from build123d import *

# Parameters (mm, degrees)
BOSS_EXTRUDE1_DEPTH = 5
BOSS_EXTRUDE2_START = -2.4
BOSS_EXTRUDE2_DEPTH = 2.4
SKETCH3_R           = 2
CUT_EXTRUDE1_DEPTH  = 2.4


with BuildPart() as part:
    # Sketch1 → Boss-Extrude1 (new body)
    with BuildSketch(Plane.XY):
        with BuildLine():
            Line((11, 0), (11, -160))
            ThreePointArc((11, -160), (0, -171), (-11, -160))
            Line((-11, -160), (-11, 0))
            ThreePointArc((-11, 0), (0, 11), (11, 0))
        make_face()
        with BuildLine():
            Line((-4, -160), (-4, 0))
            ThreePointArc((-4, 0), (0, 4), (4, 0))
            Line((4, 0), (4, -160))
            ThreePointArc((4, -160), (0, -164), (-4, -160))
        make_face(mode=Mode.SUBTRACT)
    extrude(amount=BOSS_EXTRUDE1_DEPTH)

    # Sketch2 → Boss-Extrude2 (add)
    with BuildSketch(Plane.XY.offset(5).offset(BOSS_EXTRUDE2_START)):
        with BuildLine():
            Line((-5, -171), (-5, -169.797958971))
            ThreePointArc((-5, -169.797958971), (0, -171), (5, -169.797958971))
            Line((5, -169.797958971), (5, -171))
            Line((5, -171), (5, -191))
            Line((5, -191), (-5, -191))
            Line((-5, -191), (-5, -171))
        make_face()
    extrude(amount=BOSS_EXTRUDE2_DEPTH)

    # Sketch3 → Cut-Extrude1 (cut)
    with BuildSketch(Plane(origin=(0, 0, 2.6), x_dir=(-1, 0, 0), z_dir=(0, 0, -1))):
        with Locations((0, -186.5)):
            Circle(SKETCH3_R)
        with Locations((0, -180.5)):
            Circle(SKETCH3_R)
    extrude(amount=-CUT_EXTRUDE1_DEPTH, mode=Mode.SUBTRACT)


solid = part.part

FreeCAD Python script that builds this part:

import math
import FreeCAD as App
import Part
import Sketcher
Q = App.Units.Quantity

doc = App.newDocument("Part")
params = doc.addObject("Spreadsheet::Sheet", "Params")
for row, (alias, value) in enumerate([
    ("sketch1_radius", "11 mm"),
    ("sketch1_radius2", "4 mm"),
    ("sketch1_height", "160 mm"),
    ("pad1_length", "5 mm"),
    ("sketch2_radius", "11 mm"),
    ("sketch2_width", "10 mm"),
    ("pad2_length", "2.4 mm"),
    ("sketch3_diameter", "4 mm"),
    ("pocket1_length", "2.4 mm"),
], start=1):
    params.set(f"A{row}", alias)
    params.set(f"B{row}", "=" + value)
    params.setAlias(f"B{row}", alias)

body = doc.addObject("PartDesign::Body", "Body")

# Sketch on XY plane
sketch1 = body.newObject("Sketcher::SketchObject", "Sketch")
sketch1.AttachmentSupport = (doc.getObject("XY_Plane"), [""])
sketch1.MapMode = "FlatFace"
sketch1.addGeometry(Part.LineSegment(App.Vector(11, -160, 0), App.Vector(11, 0, 0)), False)
sketch1.addGeometry(Part.ArcOfCircle(Part.Circle(App.Vector(0, 0, 0), App.Vector(0, 0, 1), 11), math.radians(0), math.radians(180)), False)
sketch1.addGeometry(Part.LineSegment(App.Vector(-11, 0, 0), App.Vector(-11, -160, 0)), False)
sketch1.addGeometry(Part.ArcOfCircle(Part.Circle(App.Vector(0, -160, 0), App.Vector(0, 0, 1), 11), math.radians(180), math.radians(360)), False)
sketch1.addGeometry(Part.LineSegment(App.Vector(-4, -160, 0), App.Vector(-4, 0, 0)), False)
sketch1.addGeometry(Part.ArcOfCircle(Part.Circle(App.Vector(0, 0, 0), App.Vector(0, 0, 1), 4), math.radians(0), math.radians(180)), False)
sketch1.addGeometry(Part.LineSegment(App.Vector(4, 0, 0), App.Vector(4, -160, 0)), False)
sketch1.addGeometry(Part.ArcOfCircle(Part.Circle(App.Vector(0, -160, 0), App.Vector(0, 0, 1), 4), math.radians(180), math.radians(360)), False)
sketch1.addConstraint(Sketcher.Constraint("Tangent", 0, 2, 1, 1))
sketch1.addConstraint(Sketcher.Constraint("Tangent", 1, 2, 2, 1))
sketch1.addConstraint(Sketcher.Constraint("Tangent", 2, 2, 3, 1))
sketch1.addConstraint(Sketcher.Constraint("Tangent", 3, 2, 0, 1))
sketch1.addConstraint(Sketcher.Constraint("Tangent", 4, 2, 5, 2))
sketch1.addConstraint(Sketcher.Constraint("Tangent", 5, 1, 6, 1))
sketch1.addConstraint(Sketcher.Constraint("Tangent", 6, 2, 7, 2))
sketch1.addConstraint(Sketcher.Constraint("Tangent", 7, 1, 4, 1))
sketch1.addConstraint(Sketcher.Constraint("Vertical", 0))
sketch1.addConstraint(Sketcher.Constraint("Vertical", 2))
sketch1.addConstraint(Sketcher.Constraint("Vertical", 4))
sketch1.addConstraint(Sketcher.Constraint("Vertical", 6))
sketch1.addConstraint(Sketcher.Constraint("Coincident", 1, 3, -1, 1))
sketch1.addConstraint(Sketcher.Constraint("Coincident", 5, 3, -1, 1))
sketch1.addConstraint(Sketcher.Constraint("Horizontal", 7, 3, 2, 2))
sketch1.addConstraint(Sketcher.Constraint("Radius", 1, Q("11 mm")))
sketch1.addConstraint(Sketcher.Constraint("Radius", 5, Q("4 mm")))
sketch1.addConstraint(Sketcher.Constraint("DistanceY", 0, 1, 0, 2, Q("160 mm")))
sketch1.setExpression("Constraints[15]", "Params.sketch1_radius")
sketch1.setExpression("Constraints[16]", "Params.sketch1_radius2")
sketch1.setExpression("Constraints[17]", "Params.sketch1_height")
pad1 = body.newObject("PartDesign::Pad", "Pad")
pad1.Profile = sketch1
pad1.setExpression("Length", "Params.pad1_length")

# Sketch on XY plane
sketch2 = body.newObject("Sketcher::SketchObject", "Sketch001")
sketch2.AttachmentSupport = (doc.getObject("XY_Plane"), [""])
sketch2.MapMode = "FlatFace"
sketch2.AttachmentOffset = App.Placement(App.Vector(0, 0, 2.6), App.Rotation())
sketch2.addGeometry(Part.ArcOfCircle(Part.Circle(App.Vector(0, -160, 0), App.Vector(0, 0, 1), 11), math.radians(-117), math.radians(-63)), False)
sketch2.addGeometry(Part.LineSegment(App.Vector(-5, -170, 0), App.Vector(-5, -191, 0)), False)
sketch2.addGeometry(Part.LineSegment(App.Vector(-5, -191, 0), App.Vector(5, -191, 0)), False)
sketch2.addGeometry(Part.LineSegment(App.Vector(5, -191, 0), App.Vector(5, -170, 0)), False)
sketch2.addConstraint(Sketcher.Constraint("Coincident", 0, 1, 1, 1))
sketch2.addConstraint(Sketcher.Constraint("Coincident", 1, 2, 2, 1))
sketch2.addConstraint(Sketcher.Constraint("Coincident", 2, 2, 3, 1))
sketch2.addConstraint(Sketcher.Constraint("Coincident", 3, 2, 0, 2))
sketch2.addConstraint(Sketcher.Constraint("Vertical", 1))
sketch2.addConstraint(Sketcher.Constraint("Horizontal", 2))
sketch2.addConstraint(Sketcher.Constraint("Vertical", 3))
sketch2.addConstraint(Sketcher.Constraint("Symmetric", 0, 1, 3, 2, -2))
sketch2.addConstraint(Sketcher.Constraint("Radius", 0, Q("11 mm")))
sketch2.addConstraint(Sketcher.Constraint("DistanceX", 2, 1, 2, 2, Q("10 mm")))
sketch2.addConstraint(Sketcher.Constraint("DistanceY", 0, 3, -1, 1, Q("160 mm")))
sketch2.addConstraint(Sketcher.Constraint("DistanceY", 1, 2, -1, 1, Q("191 mm")))
sketch2.setExpression("Constraints[8]", "Params.sketch2_radius")
sketch2.setExpression("Constraints[9]", "Params.sketch2_width")
pad2 = body.newObject("PartDesign::Pad", "Pad001")
pad2.Profile = sketch2
pad2.setExpression("Length", "Params.pad2_length")

# Sketch on XY plane
sketch3 = body.newObject("Sketcher::SketchObject", "Sketch002")
sketch3.AttachmentSupport = (doc.getObject("XY_Plane"), [""])
sketch3.MapMode = "FlatFace"
sketch3.AttachmentOffset = App.Placement(App.Vector(0, 0, 2.6), App.Rotation())
sketch3.addGeometry(Part.Circle(App.Vector(0, -186.5, 0), App.Vector(0, 0, 1), 2), False)
sketch3.addGeometry(Part.Circle(App.Vector(0, -180.5, 0), App.Vector(0, 0, 1), 2), False)
sketch3.addConstraint(Sketcher.Constraint("Equal", 0, 1))
sketch3.addConstraint(Sketcher.Constraint("PointOnObject", 0, 3, -2))
sketch3.addConstraint(Sketcher.Constraint("PointOnObject", 1, 3, -2))
sketch3.addConstraint(Sketcher.Constraint("Diameter", 0, Q("4 mm")))
sketch3.addConstraint(Sketcher.Constraint("DistanceY", 0, 3, 1, 3, Q("6 mm")))
sketch3.addConstraint(Sketcher.Constraint("DistanceY", 0, 3, -1, 1, Q("186.5 mm")))
sketch3.setExpression("Constraints[3]", "Params.sketch3_diameter")
pocket1 = body.newObject("PartDesign::Pocket", "Pocket")
pocket1.Profile = sketch3
pocket1.setExpression("Length", "Params.pocket1_length")
pocket1.Reversed = True

doc.recompute()
